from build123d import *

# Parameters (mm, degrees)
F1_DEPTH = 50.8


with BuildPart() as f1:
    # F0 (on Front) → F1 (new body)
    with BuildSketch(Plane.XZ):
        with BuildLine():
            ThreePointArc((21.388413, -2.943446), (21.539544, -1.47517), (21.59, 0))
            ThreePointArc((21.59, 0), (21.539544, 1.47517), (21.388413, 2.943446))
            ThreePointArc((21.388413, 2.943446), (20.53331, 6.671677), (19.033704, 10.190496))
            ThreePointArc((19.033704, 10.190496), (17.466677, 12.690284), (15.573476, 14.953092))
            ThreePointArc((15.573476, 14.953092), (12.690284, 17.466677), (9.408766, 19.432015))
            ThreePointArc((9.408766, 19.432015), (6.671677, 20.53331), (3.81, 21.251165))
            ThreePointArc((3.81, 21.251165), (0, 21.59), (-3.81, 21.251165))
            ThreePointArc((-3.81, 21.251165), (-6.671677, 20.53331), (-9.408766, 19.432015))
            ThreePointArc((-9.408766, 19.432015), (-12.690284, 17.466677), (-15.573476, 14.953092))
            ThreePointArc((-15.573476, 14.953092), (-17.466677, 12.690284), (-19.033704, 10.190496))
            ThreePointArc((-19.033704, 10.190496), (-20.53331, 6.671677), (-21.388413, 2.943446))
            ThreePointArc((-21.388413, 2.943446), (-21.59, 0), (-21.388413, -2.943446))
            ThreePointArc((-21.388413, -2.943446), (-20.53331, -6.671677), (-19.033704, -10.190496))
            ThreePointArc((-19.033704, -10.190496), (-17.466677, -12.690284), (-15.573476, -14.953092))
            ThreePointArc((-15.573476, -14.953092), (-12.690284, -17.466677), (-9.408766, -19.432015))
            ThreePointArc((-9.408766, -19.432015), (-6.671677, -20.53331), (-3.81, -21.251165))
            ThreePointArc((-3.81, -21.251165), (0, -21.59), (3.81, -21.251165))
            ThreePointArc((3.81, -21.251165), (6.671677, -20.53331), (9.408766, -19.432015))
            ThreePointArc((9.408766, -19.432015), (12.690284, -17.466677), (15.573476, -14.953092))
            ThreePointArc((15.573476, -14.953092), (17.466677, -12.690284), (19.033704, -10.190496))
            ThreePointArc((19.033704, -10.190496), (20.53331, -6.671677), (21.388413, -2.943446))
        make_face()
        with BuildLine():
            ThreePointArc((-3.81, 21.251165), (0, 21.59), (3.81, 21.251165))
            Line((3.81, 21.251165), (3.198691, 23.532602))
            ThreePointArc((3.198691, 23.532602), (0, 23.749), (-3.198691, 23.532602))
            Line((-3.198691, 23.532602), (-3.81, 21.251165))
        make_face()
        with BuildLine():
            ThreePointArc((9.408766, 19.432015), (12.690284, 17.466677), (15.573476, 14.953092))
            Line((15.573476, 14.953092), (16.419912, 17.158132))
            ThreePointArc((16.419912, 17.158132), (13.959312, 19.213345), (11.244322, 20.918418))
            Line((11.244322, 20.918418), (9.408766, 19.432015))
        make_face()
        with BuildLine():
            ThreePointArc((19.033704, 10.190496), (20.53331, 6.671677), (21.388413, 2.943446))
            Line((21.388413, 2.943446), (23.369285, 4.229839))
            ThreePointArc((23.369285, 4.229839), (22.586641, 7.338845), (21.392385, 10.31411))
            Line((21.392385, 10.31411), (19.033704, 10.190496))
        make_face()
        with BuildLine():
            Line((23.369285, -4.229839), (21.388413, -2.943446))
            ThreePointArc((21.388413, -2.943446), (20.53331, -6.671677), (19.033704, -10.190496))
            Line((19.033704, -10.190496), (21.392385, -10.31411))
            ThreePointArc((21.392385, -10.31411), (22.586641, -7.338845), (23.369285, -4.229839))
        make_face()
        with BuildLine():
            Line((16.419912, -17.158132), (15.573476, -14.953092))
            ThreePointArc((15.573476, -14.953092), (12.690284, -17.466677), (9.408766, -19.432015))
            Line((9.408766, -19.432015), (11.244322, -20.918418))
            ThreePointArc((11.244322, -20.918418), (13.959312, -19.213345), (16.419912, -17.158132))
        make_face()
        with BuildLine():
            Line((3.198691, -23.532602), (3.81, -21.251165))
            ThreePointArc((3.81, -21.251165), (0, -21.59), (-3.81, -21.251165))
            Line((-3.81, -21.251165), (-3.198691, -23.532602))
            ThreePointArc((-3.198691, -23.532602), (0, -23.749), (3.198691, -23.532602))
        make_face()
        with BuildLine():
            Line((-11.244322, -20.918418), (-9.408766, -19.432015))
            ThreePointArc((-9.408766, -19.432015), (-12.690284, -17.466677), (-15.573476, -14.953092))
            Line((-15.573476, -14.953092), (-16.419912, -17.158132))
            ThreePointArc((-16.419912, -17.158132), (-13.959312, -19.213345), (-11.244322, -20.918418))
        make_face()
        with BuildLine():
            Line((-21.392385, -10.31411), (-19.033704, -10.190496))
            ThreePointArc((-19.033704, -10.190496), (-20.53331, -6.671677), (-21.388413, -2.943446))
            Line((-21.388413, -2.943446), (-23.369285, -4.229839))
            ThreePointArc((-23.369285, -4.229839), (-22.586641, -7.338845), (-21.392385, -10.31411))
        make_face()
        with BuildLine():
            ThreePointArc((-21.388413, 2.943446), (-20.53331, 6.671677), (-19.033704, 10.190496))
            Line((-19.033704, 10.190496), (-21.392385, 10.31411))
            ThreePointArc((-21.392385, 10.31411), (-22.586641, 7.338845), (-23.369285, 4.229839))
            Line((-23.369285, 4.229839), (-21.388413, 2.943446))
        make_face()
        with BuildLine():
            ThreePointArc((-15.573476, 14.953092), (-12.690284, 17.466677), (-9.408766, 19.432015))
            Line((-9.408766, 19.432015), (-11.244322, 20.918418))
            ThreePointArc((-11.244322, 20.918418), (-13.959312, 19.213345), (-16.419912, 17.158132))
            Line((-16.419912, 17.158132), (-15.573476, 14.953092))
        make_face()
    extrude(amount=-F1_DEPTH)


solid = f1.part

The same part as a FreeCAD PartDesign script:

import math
import FreeCAD as App
import Part
import Sketcher

V = App.Vector
Q = App.Units.Quantity

doc = App.newDocument("Part")
body = doc.addObject("PartDesign::Body", "Body")

# Sketch on XZ plane
sketch1 = body.newObject("Sketcher::SketchObject", "Sketch")
sketch1.AttachmentSupport = (doc.getObject("XZ_Plane"), [""])
sketch1.MapMode = "FlatFace"
sketch1.addGeometry([
    Part.ArcOfCircle(Part.Circle(V(-0.000101, 0.000009, 0), V(0, 0, 1), 21.590101), math.radians(-7.835741), math.radians(-0.000025)),  # 0
    Part.ArcOfCircle(Part.Circle(V(-0.000101, -0.000009, 0), V(0, 0, 1), 21.590101), math.radians(0.000025), math.radians(7.835741)),  # 1
    Part.LineSegment(V(21.388413, 2.943446, 0), V(23.369285, 4.229839, 0)),  # 2
    Part.ArcOfCircle(Part.Circle(V(-0.000027, -0.00001, 0), V(0, 0, 1), 23.749029), math.radians(10.259471), math.radians(25.740538)),  # 3
    Part.LineSegment(V(21.392385, 10.31411, 0), V(19.033704, 10.190496, 0)),  # 4
    Part.ArcOfCircle(Part.Circle(V(0.000014, 0.000012, 0), V(0, 0, 1), 21.589982), math.radians(28.164237), math.radians(43.835755)),  # 5
    Part.LineSegment(V(15.573476, 14.953092, 0), V(16.419912, 17.158132, 0)),  # 6
    Part.ArcOfCircle(Part.Circle(V(0.00003, 0.000039, 0), V(0, 0, 1), 23.748951), math.radians(46.259443), math.radians(61.74056)),  # 7
    Part.LineSegment(V(11.244322, 20.918418, 0), V(9.408766, 19.432015, 0)),  # 8
    Part.ArcOfCircle(Part.Circle(V(-0.000007, -0.000013, 0), V(0, 0, 1), 21.590014), math.radians(64.164248), math.radians(79.83574)),  # 9
    Part.LineSegment(V(3.81, 21.251165, 0), V(3.198691, 23.532602, 0)),  # 10
    Part.ArcOfCircle(Part.Circle(V(0, 0.000046, 0), V(0, 0, 1), 23.748954), math.radians(82.259441), math.radians(97.740559)),  # 11
    Part.LineSegment(V(-3.198691, 23.532602, 0), V(-3.81, 21.251165, 0)),  # 12
    Part.ArcOfCircle(Part.Circle(V(0.000007, -0.000013, 0), V(0, 0, 1), 21.590014), math.radians(100.16426), math.radians(115.835752)),  # 13
    Part.LineSegment(V(-9.408766, 19.432015, 0), V(-11.244322, 20.918418, 0)),  # 14
    Part.ArcOfCircle(Part.Circle(V(-0.00003, 0.000039, 0), V(0, 0, 1), 23.748951), math.radians(118.25944), math.radians(133.740557)),  # 15
    Part.LineSegment(V(-16.419912, 17.158132, 0), V(-15.573476, 14.953092, 0)),  # 16
    Part.ArcOfCircle(Part.Circle(V(-0.000014, 0.000012, 0), V(0, 0, 1), 21.589982), math.radians(136.164245), math.radians(151.835763)),  # 17
    Part.LineSegment(V(-19.033704, 10.190496, 0), V(-21.392385, 10.31411, 0)),  # 18
    Part.ArcOfCircle(Part.Circle(V(0.000027, -0.00001, 0), V(0, 0, 1), 23.749029), math.radians(154.259462), math.radians(169.740529)),  # 19
    Part.LineSegment(V(-23.369285, 4.229839, 0), V(-21.388413, 2.943446, 0)),  # 20
    Part.ArcOfCircle(Part.Circle(V(-0.000037, 0, 0), V(0, 0, 1), 21.589963), math.radians(172.164234), math.radians(187.835766)),  # 21
    Part.LineSegment(V(-21.388413, -2.943446, 0), V(-23.369285, -4.229839, 0)),  # 22
    Part.ArcOfCircle(Part.Circle(V(0.000027, 0.00001, 0), V(0, 0, 1), 23.749029), math.radians(-169.740529), math.radians(-154.259462)),  # 23
    Part.LineSegment(V(-21.392385, -10.31411, 0), V(-19.033704, -10.190496, 0)),  # 24
    Part.ArcOfCircle(Part.Circle(V(-0.000014, -0.000012, 0), V(0, 0, 1), 21.589982), math.radians(-151.835763), math.radians(-136.164245)),  # 25
    Part.LineSegment(V(-15.573476, -14.953092, 0), V(-16.419912, -17.158132, 0)),  # 26
    Part.ArcOfCircle(Part.Circle(V(-0.00003, -0.000039, 0), V(0, 0, 1), 23.748951), math.radians(-133.740557), math.radians(-118.25944)),  # 27
    Part.LineSegment(V(-11.244322, -20.918418, 0), V(-9.408766, -19.432015, 0)),  # 28
    Part.ArcOfCircle(Part.Circle(V(0.000007, 0.000013, 0), V(0, 0, 1), 21.590014), math.radians(-115.835752), math.radians(-100.16426)),  # 29
    Part.LineSegment(V(-3.81, -21.251165, 0), V(-3.198691, -23.532602, 0)),  # 30
    Part.ArcOfCircle(Part.Circle(V(0, -0.000046, 0), V(0, 0, 1), 23.748954), math.radians(-97.740559), math.radians(-82.259441)),  # 31
    Part.LineSegment(V(3.198691, -23.532602, 0), V(3.81, -21.251165, 0)),  # 32
    Part.ArcOfCircle(Part.Circle(V(-0.000007, 0.000013, 0), V(0, 0, 1), 21.590014), math.radians(-79.83574), math.radians(-64.164248)),  # 33
    Part.LineSegment(V(9.408766, -19.432015, 0), V(11.244322, -20.918418, 0)),  # 34
    Part.ArcOfCircle(Part.Circle(V(0.00003, -0.000039, 0), V(0, 0, 1), 23.748951), math.radians(-61.74056), math.radians(-46.259443)),  # 35
    Part.LineSegment(V(16.419912, -17.158132, 0), V(15.573476, -14.953092, 0)),  # 36
    Part.ArcOfCircle(Part.Circle(V(0.000014, -0.000012, 0), V(0, 0, 1), 21.589982), math.radians(-43.835755), math.radians(-28.164237)),  # 37
    Part.LineSegment(V(19.033704, -10.190496, 0), V(21.392385, -10.31411, 0)),  # 38
    Part.ArcOfCircle(Part.Circle(V(-0.000027, 0.00001, 0), V(0, 0, 1), 23.749029), math.radians(-25.740538), math.radians(-10.259471)),  # 39
    Part.LineSegment(V(23.369285, -4.229839, 0), V(21.388413, -2.943446, 0)),  # 40
], False)
sketch1.addConstraint([
    Sketcher.Constraint("Coincident", 0, 2, 1, 1),
    Sketcher.Constraint("Coincident", 1, 2, 2, 1),
    Sketcher.Constraint("Coincident", 2, 2, 3, 1),
    Sketcher.Constraint("Coincident", 3, 2, 4, 1),
    Sketcher.Constraint("Coincident", 4, 2, 5, 1),
    Sketcher.Constraint("Coincident", 5, 2, 6, 1),
    Sketcher.Constraint("Coincident", 6, 2, 7, 1),
    Sketcher.Constraint("Coincident", 7, 2, 8, 1),
    Sketcher.Constraint("Coincident", 8, 2, 9, 1),
    Sketcher.Constraint("Coincident", 9, 2, 10, 1),
    Sketcher.Constraint("Coincident", 10, 2, 11, 1),
    Sketcher.Constraint("Coincident", 11, 2, 12, 1),
    Sketcher.Constraint("Coincident", 12, 2, 13, 1),
    Sketcher.Constraint("Coincident", 13, 2, 14, 1),
    Sketcher.Constraint("Coincident", 14, 2, 15, 1),
    Sketcher.Constraint("Coincident", 15, 2, 16, 1),
    Sketcher.Constraint("Coincident", 16, 2, 17, 1),
    Sketcher.Constraint("Coincident", 17, 2, 18, 1),
    Sketcher.Constraint("Coincident", 18, 2, 19, 1),
    Sketcher.Constraint("Coincident", 19, 2, 20, 1),
    Sketcher.Constraint("Coincident", 20, 2, 21, 1),
    Sketcher.Constraint("Coincident", 21, 2, 22, 1),
    Sketcher.Constraint("Coincident", 22, 2, 23, 1),
    Sketcher.Constraint("Coincident", 23, 2, 24, 1),
    Sketcher.Constraint("Coincident", 24, 2, 25, 1),
    Sketcher.Constraint("Coincident", 25, 2, 26, 1),
    Sketcher.Constraint("Coincident", 26, 2, 27, 1),
    Sketcher.Constraint("Coincident", 27, 2, 28, 1),
    Sketcher.Constraint("Coincident", 28, 2, 29, 1),
    Sketcher.Constraint("Coincident", 29, 2, 30, 1),
    Sketcher.Constraint("Coincident", 30, 2, 31, 1),
    Sketcher.Constraint("Coincident", 31, 2, 32, 1),
    Sketcher.Constraint("Coincident", 32, 2, 33, 1),
    Sketcher.Constraint("Coincident", 33, 2, 34, 1),
    Sketcher.Constraint("Coincident", 34, 2, 35, 1),
    Sketcher.Constraint("Coincident", 35, 2, 36, 1),
    Sketcher.Constraint("Coincident", 36, 2, 37, 1),
    Sketcher.Constraint("Coincident", 37, 2, 38, 1),
    Sketcher.Constraint("Coincident", 38, 2, 39, 1),
    Sketcher.Constraint("Coincident", 39, 2, 40, 1),
    Sketcher.Constraint("Coincident", 40, 2, 0, 1),
    Sketcher.Constraint("Coincident", 25, 3, 9, 3),
    Sketcher.Constraint("Coincident", 29, 3, 5, 3),
    Sketcher.Constraint("Coincident", 33, 3, 17, 3),
    Sketcher.Constraint("Coincident", 37, 3, 13, 3),
    Sketcher.Constraint("PointOnObject", 11, 3, -2),
    Sketcher.Constraint("PointOnObject", 21, 3, -1),
    Sketcher.Constraint("PointOnObject", 31, 3, -2),
    Sketcher.Constraint("PointOnObject", 0, 2, -1),
    Sketcher.Constraint("DistanceX", -1, 1, 0, 2, Q("0.85 in")),
    Sketcher.Constraint("DistanceX", -1, 1, 9, 2, Q("0.15 in")),
    Sketcher.Constraint("DistanceX", 12, 2, -1, 1, Q("0.15 in")),
    Sketcher.Constraint("DistanceX", 29, 2, -1, 1, Q("0.15 in")),
    Sketcher.Constraint("DistanceX", -1, 1, 32, 2, Q("0.15 in")),
    Sketcher.Constraint("Radius", 0, Q("21.590101 mm")),
    Sketcher.Constraint("Radius", 1, Q("21.590101 mm")),
    Sketcher.Constraint("Radius", 3, Q("23.749029 mm")),
    Sketcher.Constraint("Radius", 5, Q("21.589982 mm")),
    Sketcher.Constraint("Radius", 7, Q("23.748951 mm")),
    Sketcher.Constraint("Radius", 15, Q("23.748951 mm")),
    Sketcher.Constraint("Radius", 17, Q("21.589982 mm")),
    Sketcher.Constraint("Radius", 19, Q("23.749029 mm")),
    Sketcher.Constraint("Radius", 23, Q("23.749029 mm")),
    Sketcher.Constraint("Radius", 25, Q("21.589982 mm")),
    Sketcher.Constraint("Radius", 27, Q("23.748951 mm")),
    Sketcher.Constraint("Radius", 35, Q("23.748951 mm")),
    Sketcher.Constraint("Radius", 37, Q("21.589982 mm")),
    Sketcher.Constraint("Radius", 39, Q("23.749029 mm")),
    Sketcher.Constraint("Radius", 9, Q("21.590014 mm")),
    Sketcher.Constraint("Radius", 11, Q("23.748954 mm")),
    Sketcher.Constraint("Radius", 13, Q("21.590014 mm")),
    Sketcher.Constraint("Radius", 21, Q("21.589963 mm")),
    Sketcher.Constraint("Radius", 29, Q("21.590014 mm")),
    Sketcher.Constraint("Radius", 31, Q("23.748954 mm")),
    Sketcher.Constraint("Radius", 33, Q("21.590014 mm")),
    Sketcher.Constraint("Distance", 2, Q("2.361919 mm")),
    Sketcher.Constraint("Distance", 8, Q("2.361919 mm")),
    Sketcher.Constraint("Distance", 14, Q("2.361919 mm")),
    Sketcher.Constraint("Distance", 20, Q("2.361919 mm")),
    Sketcher.Constraint("Distance", 22, Q("2.361919 mm")),
    Sketcher.Constraint("Distance", 28, Q("2.361919 mm")),
    Sketcher.Constraint("Distance", 34, Q("2.361919 mm")),
    Sketcher.Constraint("Distance", 40, Q("2.361919 mm")),
    Sketcher.Constraint("DistanceY", -1, 1, 2, 2, Q("4.229839 mm")),
    Sketcher.Constraint("DistanceY", -1, 1, 3, 2, Q("10.31411 mm")),
    Sketcher.Constraint("DistanceX", -1, 1, 6, 2, Q("16.419912 mm")),
    Sketcher.Constraint("DistanceY", -1, 1, 6, 2, Q("17.158132 mm")),
    Sketcher.Constraint("DistanceY", -1, 1, 7, 2, Q("20.918418 mm")),
    Sketcher.Constraint("DistanceX", -1, 1, 10, 2, Q("3.198691 mm")),
    Sketcher.Constraint("DistanceX", 11, 2, -1, 1, Q("3.198691 mm")),
    Sketcher.Constraint("DistanceY", -1, 1, 18, 2, Q("10.31411 mm")),
    Sketcher.Constraint("DistanceY", -1, 1, 19, 2, Q("4.229839 mm")),
    Sketcher.Constraint("DistanceY", 22, 2, -1, 1, Q("4.229839 mm")),
    Sketcher.Constraint("DistanceY", 23, 2, -1, 1, Q("10.31411 mm")),
    Sketcher.Constraint("DistanceX", 26, 2, -1, 1, Q("16.419912 mm")),
    Sketcher.Constraint("DistanceY", 26, 2, -1, 1, Q("17.158132 mm")),
    Sketcher.Constraint("DistanceY", 27, 2, -1, 1, Q("20.918418 mm")),
    Sketcher.Constraint("DistanceX", 30, 2, -1, 1, Q("3.198691 mm")),
    Sketcher.Constraint("DistanceX", -1, 1, 31, 2, Q("3.198691 mm")),
    Sketcher.Constraint("DistanceY", 38, 2, -1, 1, Q("10.31411 mm")),
    Sketcher.Constraint("DistanceY", 39, 2, -1, 1, Q("4.229839 mm")),
    Sketcher.Constraint("Distance", 4, Q("2.361918 mm")),
    Sketcher.Constraint("Distance", 6, Q("2.361918 mm")),
    Sketcher.Constraint("Distance", 10, Q("2.361917 mm")),
    Sketcher.Constraint("Distance", 12, Q("2.361917 mm")),
    Sketcher.Constraint("Distance", 16, Q("2.361918 mm")),
    Sketcher.Constraint("Distance", 18, Q("2.361918 mm")),
    Sketcher.Constraint("Distance", 24, Q("2.361918 mm")),
    Sketcher.Constraint("Distance", 26, Q("2.361918 mm")),
    Sketcher.Constraint("Distance", 30, Q("2.361917 mm")),
    Sketcher.Constraint("Distance", 32, Q("2.361917 mm")),
    Sketcher.Constraint("Distance", 36, Q("2.361918 mm")),
    Sketcher.Constraint("Distance", 38, Q("2.361918 mm")),
    Sketcher.Constraint("DistanceX", -1, 1, 1, 2, Q("21.388413 mm")),
    Sketcher.Constraint("DistanceY", -1, 1, 1, 2, Q("2.943446 mm")),
    Sketcher.Constraint("DistanceX", -1, 1, 3, 2, Q("21.392385 mm")),
    Sketcher.Constraint("DistanceX", -1, 1, 4, 2, Q("19.033704 mm")),
    Sketcher.Constraint("DistanceX", -1, 1, 5, 2, Q("15.573476 mm")),
    Sketcher.Constraint("DistanceX", -1, 1, 7, 2, Q("11.244322 mm")),
    Sketcher.Constraint("DistanceX", -1, 1, 8, 2, Q("9.408766 mm")),
    Sketcher.Constraint("DistanceY", -1, 1, 9, 2, Q("21.251165 mm")),
    Sketcher.Constraint("DistanceX", 13, 2, -1, 1, Q("9.408766 mm")),
    Sketcher.Constraint("DistanceY", -1, 1, 13, 2, Q("19.432015 mm")),
    Sketcher.Constraint("DistanceX", 14, 2, -1, 1, Q("11.244322 mm")),
    Sketcher.Constraint("DistanceX", 15, 2, -1, 1, Q("16.419912 mm")),
    Sketcher.Constraint("DistanceY", -1, 1, 15, 2, Q("17.158132 mm")),
    Sketcher.Constraint("DistanceX", 16, 2, -1, 1, Q("15.573476 mm")),
    Sketcher.Constraint("DistanceX", 17, 2, -1, 1, Q("19.033704 mm")),
    Sketcher.Constraint("DistanceX", 19, 2, -1, 1, Q("23.369285 mm")),
    Sketcher.Constraint("DistanceX", 20, 2, -1, 1, Q("21.388413 mm")),
    Sketcher.Constraint("DistanceX", 21, 2, -1, 1, Q("21.388413 mm")),
    Sketcher.Constraint("DistanceX", 23, 2, -1, 1, Q("21.392385 mm")),
    Sketcher.Constraint("DistanceX", 27, 2, -1, 1, Q("11.244322 mm")),
    Sketcher.Constraint("DistanceX", -1, 1, 33, 2, Q("9.408766 mm")),
    Sketcher.Constraint("DistanceX", -1, 1, 34, 2, Q("11.244322 mm")),
    Sketcher.Constraint("DistanceX", -1, 1, 35, 2, Q("16.419912 mm")),
    Sketcher.Constraint("DistanceY", 35, 2, -1, 1, Q("17.158132 mm")),
    Sketcher.Constraint("DistanceX", -1, 1, 37, 2, Q("19.033704 mm")),
    Sketcher.Constraint("DistanceX", -1, 1, 39, 2, Q("23.369285 mm")),
    Sketcher.Constraint("DistanceX", -1, 1, 40, 2, Q("21.388413 mm")),
])
pad1 = body.newObject("PartDesign::Pad", "Pad")
pad1.Profile = sketch1
pad1.Length = Q("2 in")
pad1.Reversed = True

doc.recompute()
